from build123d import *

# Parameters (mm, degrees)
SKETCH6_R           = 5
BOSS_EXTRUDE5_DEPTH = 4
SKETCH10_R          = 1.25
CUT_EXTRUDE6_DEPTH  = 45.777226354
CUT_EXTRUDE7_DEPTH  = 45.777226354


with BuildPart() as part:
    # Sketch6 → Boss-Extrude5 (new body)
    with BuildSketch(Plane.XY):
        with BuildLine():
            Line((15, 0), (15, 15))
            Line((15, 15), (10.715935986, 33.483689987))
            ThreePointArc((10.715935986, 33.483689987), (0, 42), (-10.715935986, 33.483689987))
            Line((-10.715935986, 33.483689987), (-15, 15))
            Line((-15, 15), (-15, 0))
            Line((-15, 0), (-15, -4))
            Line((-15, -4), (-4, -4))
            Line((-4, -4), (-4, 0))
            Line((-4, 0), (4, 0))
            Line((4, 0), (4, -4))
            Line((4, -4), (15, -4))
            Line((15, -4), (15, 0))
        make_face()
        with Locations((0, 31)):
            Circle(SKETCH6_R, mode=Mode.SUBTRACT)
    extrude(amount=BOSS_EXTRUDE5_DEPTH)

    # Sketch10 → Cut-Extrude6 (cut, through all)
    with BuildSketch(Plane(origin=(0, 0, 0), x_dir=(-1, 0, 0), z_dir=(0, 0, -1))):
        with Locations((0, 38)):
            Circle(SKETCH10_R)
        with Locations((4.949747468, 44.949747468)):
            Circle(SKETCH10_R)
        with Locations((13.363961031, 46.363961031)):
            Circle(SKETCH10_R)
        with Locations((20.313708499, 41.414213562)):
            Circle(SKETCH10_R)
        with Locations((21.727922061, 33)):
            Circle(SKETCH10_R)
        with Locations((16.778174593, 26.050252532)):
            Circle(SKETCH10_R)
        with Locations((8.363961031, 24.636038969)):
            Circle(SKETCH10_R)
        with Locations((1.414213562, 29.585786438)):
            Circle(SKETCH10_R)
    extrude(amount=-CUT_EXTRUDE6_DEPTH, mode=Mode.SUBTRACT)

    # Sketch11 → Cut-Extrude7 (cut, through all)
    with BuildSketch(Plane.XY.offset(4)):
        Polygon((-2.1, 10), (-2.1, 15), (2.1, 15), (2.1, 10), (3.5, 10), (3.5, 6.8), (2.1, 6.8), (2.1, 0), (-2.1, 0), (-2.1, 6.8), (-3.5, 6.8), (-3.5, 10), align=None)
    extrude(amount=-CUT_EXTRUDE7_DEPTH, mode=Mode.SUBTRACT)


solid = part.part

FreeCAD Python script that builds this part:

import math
import FreeCAD as App
import Part
import Sketcher


def add_polygon(sketch, points):
    """Adds a closed chain of lines whose ends are joined by coincident constraints."""
    first, n = sketch.GeometryCount, len(points)
    for a, b in zip(points, points[1:] + points[:1]):
        sketch.addGeometry(Part.LineSegment(App.Vector(*a, 0), App.Vector(*b, 0)), False)
    for i in range(n):
        sketch.addConstraint(Sketcher.Constraint("Coincident", first + i, 2, first + (i + 1) % n, 1))

doc = App.newDocument("Part")
body = doc.addObject("PartDesign::Body", "Body")

sketch1 = body.newObject("Sketcher::SketchObject", "Sketch")
sketch1.AttachmentSupport = (doc.getObject("XY_Plane"), [""])
sketch1.MapMode = "FlatFace"
sketch1.addGeometry(Part.LineSegment(App.Vector(15, 15, 0), App.Vector(10.715936, 33.48369, 0)), False)
sketch1.addGeometry(Part.ArcOfCircle(Part.Circle(App.Vector(0, 31, 0), App.Vector(0, 0, 1), 11), math.radians(13.049337), math.radians(166.950663)), False)
sketch1.addGeometry(Part.LineSegment(App.Vector(-10.715936, 33.48369, 0), App.Vector(-15, 15, 0)), False)
sketch1.addGeometry(Part.LineSegment(App.Vector(-15, 15, 0), App.Vector(-15, -4, 0)), False)
sketch1.addGeometry(Part.LineSegment(App.Vector(-15, -4, 0), App.Vector(-4, -4, 0)), False)
sketch1.addGeometry(Part.LineSegment(App.Vector(-4, -4, 0), App.Vector(-4, 0, 0)), False)
sketch1.addGeometry(Part.LineSegment(App.Vector(-4, 0, 0), App.Vector(4, 0, 0)), False)
sketch1.addGeometry(Part.LineSegment(App.Vector(4, 0, 0), App.Vector(4, -4, 0)), False)
sketch1.addGeometry(Part.LineSegment(App.Vector(4, -4, 0), App.Vector(15, -4, 0)), False)
sketch1.addGeometry(Part.LineSegment(App.Vector(15, -4, 0), App.Vector(15, 15, 0)), False)
sketch1.addGeometry(Part.Circle(App.Vector(0, 31, 0), App.Vector(0, 0, 1), 5), False)
sketch1.addConstraint(Sketcher.Constraint("Tangent", 0, 2, 1, 1))
sketch1.addConstraint(Sketcher.Constraint("Tangent", 1, 2, 2, 1))
sketch1.addConstraint(Sketcher.Constraint("Coincident", 2, 2, 3, 1))
sketch1.addConstraint(Sketcher.Constraint("Coincident", 3, 2, 4, 1))
sketch1.addConstraint(Sketcher.Constraint("Coincident", 4, 2, 5, 1))
sketch1.addConstraint(Sketcher.Constraint("Coincident", 5, 2, 6, 1))
sketch1.addConstraint(Sketcher.Constraint("Coincident", 6, 2, 7, 1))
sketch1.addConstraint(Sketcher.Constraint("Coincident", 7, 2, 8, 1))
sketch1.addConstraint(Sketcher.Constraint("Coincident", 8, 2, 9, 1))
sketch1.addConstraint(Sketcher.Constraint("Coincident", 9, 2, 0, 1))
sketch1.addConstraint(Sketcher.Constraint("Vertical", 3))
sketch1.addConstraint(Sketcher.Constraint("Horizontal", 4))
sketch1.addConstraint(Sketcher.Constraint("Vertical", 5))
sketch1.addConstraint(Sketcher.Constraint("Horizontal", 6))
sketch1.addConstraint(Sketcher.Constraint("Vertical", 7))
sketch1.addConstraint(Sketcher.Constraint("Horizontal", 8))
sketch1.addConstraint(Sketcher.Constraint("Vertical", 9))
sketch1.addConstraint(Sketcher.Constraint("Coincident", 10, 3, 1, 3))
sketch1.addConstraint(Sketcher.Constraint("Symmetric", 5, 2, 6, 2, -1, 1))
sketch1.addConstraint(Sketcher.Constraint("Symmetric", 0, 2, 1, 2, -2))
sketch1.addConstraint(Sketcher.Constraint("Symmetric", 3, 2, 8, 2, -2))
sketch1.addConstraint(Sketcher.Constraint("Diameter", 10, 10.0))
sketch1.addConstraint(Sketcher.Constraint("Radius", 1, 11.0))
sketch1.addConstraint(Sketcher.Constraint("DistanceX", 4, 1, 4, 2, 11.0))
sketch1.addConstraint(Sketcher.Constraint("DistanceX", 6, 1, 6, 2, 8.0))
sketch1.addConstraint(Sketcher.Constraint("DistanceY", 3, 2, 3, 1, 19.0))
sketch1.addConstraint(Sketcher.Constraint("DistanceY", 5, 1, 5, 2, 4.0))
sketch1.addConstraint(Sketcher.Constraint("DistanceY", -1, 1, 1, 3, 31.0))
pad1 = body.newObject("PartDesign::Pad", "Pad")
pad1.Profile = sketch1
pad1.Length = 4

sketch2 = body.newObject("Sketcher::SketchObject", "Sketch001")
sketch2.AttachmentSupport = (doc.getObject("XY_Plane"), [""])
sketch2.MapMode = "FlatFace"
sketch2.addGeometry(Part.Circle(App.Vector(0, 38, 0), App.Vector(0, 0, 1), 1.25), False)
sketch2.addGeometry(Part.Circle(App.Vector(-4.949747, 44.949747, 0), App.Vector(0, 0, 1), 1.25), False)
sketch2.addGeometry(Part.Circle(App.Vector(-13.363961, 46.363961, 0), App.Vector(0, 0, 1), 1.25), False)
sketch2.addGeometry(Part.Circle(App.Vector(-20.313708, 41.414214, 0), App.Vector(0, 0, 1), 1.25), False)
sketch2.addGeometry(Part.Circle(App.Vector(-21.727922, 33, 0), App.Vector(0, 0, 1), 1.25), False)
sketch2.addGeometry(Part.Circle(App.Vector(-16.778175, 26.050253, 0), App.Vector(0, 0, 1), 1.25), False)
sketch2.addGeometry(Part.Circle(App.Vector(-8.363961, 24.636039, 0), App.Vector(0, 0, 1), 1.25), False)
sketch2.addGeometry(Part.Circle(App.Vector(-1.414214, 29.585786, 0), App.Vector(0, 0, 1), 1.25), False)
sketch2.addConstraint(Sketcher.Constraint("Equal", 0, 1))
sketch2.addConstraint(Sketcher.Constraint("Equal", 1, 2))
sketch2.addConstraint(Sketcher.Constraint("Equal", 2, 3))
sketch2.addConstraint(Sketcher.Constraint("Equal", 3, 4))
sketch2.addConstraint(Sketcher.Constraint("Equal", 4, 5))
sketch2.addConstraint(Sketcher.Constraint("Equal", 5, 6))
sketch2.addConstraint(Sketcher.Constraint("Equal", 6, 7))
sketch2.addConstraint(Sketcher.Constraint("PointOnObject", 0, 3, -2))
sketch2.addConstraint(Sketcher.Constraint("Diameter", 0, 2.5))
sketch2.addConstraint(Sketcher.Constraint("DistanceY", -1, 1, 0, 3, 38.0))
sketch2.addConstraint(Sketcher.Constraint("DistanceY", -1, 1, 4, 3, 33.0))
sketch2.addConstraint(Sketcher.Constraint("DistanceX", 2, 3, -1, 1, 13.363961))
sketch2.addConstraint(Sketcher.Constraint("DistanceY", -1, 1, 2, 3, 46.363961))
sketch2.addConstraint(Sketcher.Constraint("DistanceX", 3, 3, -1, 1, 20.313708))
sketch2.addConstraint(Sketcher.Constraint("DistanceX", 6, 3, -1, 1, 8.363961))
sketch2.addConstraint(Sketcher.Constraint("DistanceY", -1, 1, 6, 3, 24.636039))
sketch2.addConstraint(Sketcher.Constraint("DistanceX", 3, 3, 1, 3, 15.363961))
sketch2.addConstraint(Sketcher.Constraint("DistanceX", 4, 3, 2, 3, 8.363961))
sketch2.addConstraint(Sketcher.Constraint("DistanceY", 5, 3, 3, 3, 15.363961))
sketch2.addConstraint(Sketcher.Constraint("DistanceY", 5, 3, 2, 3, 20.313708))
sketch2.addConstraint(Sketcher.Constraint("DistanceY", 6, 3, 1, 3, 20.313708))
sketch2.addConstraint(Sketcher.Constraint("DistanceY", 7, 3, 1, 3, 15.363961))
sketch2.addConstraint(Sketcher.Constraint("DistanceX", 5, 3, 7, 3, 15.363961))
sketch2.addConstraint(Sketcher.Constraint("DistanceX", 4, 3, 7, 3, 20.313708))
pocket1 = body.newObject("PartDesign::Pocket", "Pocket")
pocket1.Profile = sketch2
pocket1.Type = "ThroughAll"
pocket1.Reversed = True

sketch3 = body.newObject("Sketcher::SketchObject", "Sketch002")
sketch3.AttachmentSupport = (doc.getObject("XY_Plane"), [""])
sketch3.MapMode = "FlatFace"
sketch3.AttachmentOffset = App.Placement(App.Vector(0, 0, 4), App.Rotation())
add_polygon(sketch3, [(-2.1, 15), (-2.1, 10), (-3.5, 10), (-3.5, 6.8), (-2.1, 6.8), (-2.1, 0), (2.1, 0), (2.1, 6.8), (3.5, 6.8), (3.5, 10), (2.1, 10), (2.1, 15)])
sketch3.addConstraint(Sketcher.Constraint("Vertical", 0))
sketch3.addConstraint(Sketcher.Constraint("Horizontal", 1))
sketch3.addConstraint(Sketcher.Constraint("Vertical", 2))
sketch3.addConstraint(Sketcher.Constraint("Horizontal", 3))
sketch3.addConstraint(Sketcher.Constraint("Vertical", 4))
sketch3.addConstraint(Sketcher.Constraint("Horizontal", 5))
sketch3.addConstraint(Sketcher.Constraint("Vertical", 6))
sketch3.addConstraint(Sketcher.Constraint("Horizontal", 7))
sketch3.addConstraint(Sketcher.Constraint("Vertical", 8))
sketch3.addConstraint(Sketcher.Constraint("Horizontal", 9))
sketch3.addConstraint(Sketcher.Constraint("Vertical", 10))
sketch3.addConstraint(Sketcher.Constraint("Horizontal", 11))
sketch3.addConstraint(Sketcher.Constraint("Symmetric", 4, 2, 5, 2, -1, 1))
sketch3.addConstraint(Sketcher.Constraint("Symmetric", 2, 2, 7, 2, -2))
sketch3.addConstraint(Sketcher.Constraint("Symmetric", 0, 2, 9, 2, -2))
sketch3.addConstraint(Sketcher.Constraint("Vertical", 0, 2, 3, 2))
sketch3.addConstraint(Sketcher.Constraint("DistanceY", 0, 2, 0, 1, 5.0))
sketch3.addConstraint(Sketcher.Constraint("DistanceX", 1, 2, 1, 1, 1.4))
sketch3.addConstraint(Sketcher.Constraint("DistanceX", 5, 1, 5, 2, 4.2))
sketch3.addConstraint(Sketcher.Constraint("DistanceY", 2, 2, 2, 1, 3.2))
sketch3.addConstraint(Sketcher.Constraint("DistanceY", 4, 2, 4, 1, 6.8))
pocket2 = body.newObject("PartDesign::Pocket", "Pocket001")
pocket2.Profile = sketch3
pocket2.Type = "ThroughAll"

doc.recompute()
